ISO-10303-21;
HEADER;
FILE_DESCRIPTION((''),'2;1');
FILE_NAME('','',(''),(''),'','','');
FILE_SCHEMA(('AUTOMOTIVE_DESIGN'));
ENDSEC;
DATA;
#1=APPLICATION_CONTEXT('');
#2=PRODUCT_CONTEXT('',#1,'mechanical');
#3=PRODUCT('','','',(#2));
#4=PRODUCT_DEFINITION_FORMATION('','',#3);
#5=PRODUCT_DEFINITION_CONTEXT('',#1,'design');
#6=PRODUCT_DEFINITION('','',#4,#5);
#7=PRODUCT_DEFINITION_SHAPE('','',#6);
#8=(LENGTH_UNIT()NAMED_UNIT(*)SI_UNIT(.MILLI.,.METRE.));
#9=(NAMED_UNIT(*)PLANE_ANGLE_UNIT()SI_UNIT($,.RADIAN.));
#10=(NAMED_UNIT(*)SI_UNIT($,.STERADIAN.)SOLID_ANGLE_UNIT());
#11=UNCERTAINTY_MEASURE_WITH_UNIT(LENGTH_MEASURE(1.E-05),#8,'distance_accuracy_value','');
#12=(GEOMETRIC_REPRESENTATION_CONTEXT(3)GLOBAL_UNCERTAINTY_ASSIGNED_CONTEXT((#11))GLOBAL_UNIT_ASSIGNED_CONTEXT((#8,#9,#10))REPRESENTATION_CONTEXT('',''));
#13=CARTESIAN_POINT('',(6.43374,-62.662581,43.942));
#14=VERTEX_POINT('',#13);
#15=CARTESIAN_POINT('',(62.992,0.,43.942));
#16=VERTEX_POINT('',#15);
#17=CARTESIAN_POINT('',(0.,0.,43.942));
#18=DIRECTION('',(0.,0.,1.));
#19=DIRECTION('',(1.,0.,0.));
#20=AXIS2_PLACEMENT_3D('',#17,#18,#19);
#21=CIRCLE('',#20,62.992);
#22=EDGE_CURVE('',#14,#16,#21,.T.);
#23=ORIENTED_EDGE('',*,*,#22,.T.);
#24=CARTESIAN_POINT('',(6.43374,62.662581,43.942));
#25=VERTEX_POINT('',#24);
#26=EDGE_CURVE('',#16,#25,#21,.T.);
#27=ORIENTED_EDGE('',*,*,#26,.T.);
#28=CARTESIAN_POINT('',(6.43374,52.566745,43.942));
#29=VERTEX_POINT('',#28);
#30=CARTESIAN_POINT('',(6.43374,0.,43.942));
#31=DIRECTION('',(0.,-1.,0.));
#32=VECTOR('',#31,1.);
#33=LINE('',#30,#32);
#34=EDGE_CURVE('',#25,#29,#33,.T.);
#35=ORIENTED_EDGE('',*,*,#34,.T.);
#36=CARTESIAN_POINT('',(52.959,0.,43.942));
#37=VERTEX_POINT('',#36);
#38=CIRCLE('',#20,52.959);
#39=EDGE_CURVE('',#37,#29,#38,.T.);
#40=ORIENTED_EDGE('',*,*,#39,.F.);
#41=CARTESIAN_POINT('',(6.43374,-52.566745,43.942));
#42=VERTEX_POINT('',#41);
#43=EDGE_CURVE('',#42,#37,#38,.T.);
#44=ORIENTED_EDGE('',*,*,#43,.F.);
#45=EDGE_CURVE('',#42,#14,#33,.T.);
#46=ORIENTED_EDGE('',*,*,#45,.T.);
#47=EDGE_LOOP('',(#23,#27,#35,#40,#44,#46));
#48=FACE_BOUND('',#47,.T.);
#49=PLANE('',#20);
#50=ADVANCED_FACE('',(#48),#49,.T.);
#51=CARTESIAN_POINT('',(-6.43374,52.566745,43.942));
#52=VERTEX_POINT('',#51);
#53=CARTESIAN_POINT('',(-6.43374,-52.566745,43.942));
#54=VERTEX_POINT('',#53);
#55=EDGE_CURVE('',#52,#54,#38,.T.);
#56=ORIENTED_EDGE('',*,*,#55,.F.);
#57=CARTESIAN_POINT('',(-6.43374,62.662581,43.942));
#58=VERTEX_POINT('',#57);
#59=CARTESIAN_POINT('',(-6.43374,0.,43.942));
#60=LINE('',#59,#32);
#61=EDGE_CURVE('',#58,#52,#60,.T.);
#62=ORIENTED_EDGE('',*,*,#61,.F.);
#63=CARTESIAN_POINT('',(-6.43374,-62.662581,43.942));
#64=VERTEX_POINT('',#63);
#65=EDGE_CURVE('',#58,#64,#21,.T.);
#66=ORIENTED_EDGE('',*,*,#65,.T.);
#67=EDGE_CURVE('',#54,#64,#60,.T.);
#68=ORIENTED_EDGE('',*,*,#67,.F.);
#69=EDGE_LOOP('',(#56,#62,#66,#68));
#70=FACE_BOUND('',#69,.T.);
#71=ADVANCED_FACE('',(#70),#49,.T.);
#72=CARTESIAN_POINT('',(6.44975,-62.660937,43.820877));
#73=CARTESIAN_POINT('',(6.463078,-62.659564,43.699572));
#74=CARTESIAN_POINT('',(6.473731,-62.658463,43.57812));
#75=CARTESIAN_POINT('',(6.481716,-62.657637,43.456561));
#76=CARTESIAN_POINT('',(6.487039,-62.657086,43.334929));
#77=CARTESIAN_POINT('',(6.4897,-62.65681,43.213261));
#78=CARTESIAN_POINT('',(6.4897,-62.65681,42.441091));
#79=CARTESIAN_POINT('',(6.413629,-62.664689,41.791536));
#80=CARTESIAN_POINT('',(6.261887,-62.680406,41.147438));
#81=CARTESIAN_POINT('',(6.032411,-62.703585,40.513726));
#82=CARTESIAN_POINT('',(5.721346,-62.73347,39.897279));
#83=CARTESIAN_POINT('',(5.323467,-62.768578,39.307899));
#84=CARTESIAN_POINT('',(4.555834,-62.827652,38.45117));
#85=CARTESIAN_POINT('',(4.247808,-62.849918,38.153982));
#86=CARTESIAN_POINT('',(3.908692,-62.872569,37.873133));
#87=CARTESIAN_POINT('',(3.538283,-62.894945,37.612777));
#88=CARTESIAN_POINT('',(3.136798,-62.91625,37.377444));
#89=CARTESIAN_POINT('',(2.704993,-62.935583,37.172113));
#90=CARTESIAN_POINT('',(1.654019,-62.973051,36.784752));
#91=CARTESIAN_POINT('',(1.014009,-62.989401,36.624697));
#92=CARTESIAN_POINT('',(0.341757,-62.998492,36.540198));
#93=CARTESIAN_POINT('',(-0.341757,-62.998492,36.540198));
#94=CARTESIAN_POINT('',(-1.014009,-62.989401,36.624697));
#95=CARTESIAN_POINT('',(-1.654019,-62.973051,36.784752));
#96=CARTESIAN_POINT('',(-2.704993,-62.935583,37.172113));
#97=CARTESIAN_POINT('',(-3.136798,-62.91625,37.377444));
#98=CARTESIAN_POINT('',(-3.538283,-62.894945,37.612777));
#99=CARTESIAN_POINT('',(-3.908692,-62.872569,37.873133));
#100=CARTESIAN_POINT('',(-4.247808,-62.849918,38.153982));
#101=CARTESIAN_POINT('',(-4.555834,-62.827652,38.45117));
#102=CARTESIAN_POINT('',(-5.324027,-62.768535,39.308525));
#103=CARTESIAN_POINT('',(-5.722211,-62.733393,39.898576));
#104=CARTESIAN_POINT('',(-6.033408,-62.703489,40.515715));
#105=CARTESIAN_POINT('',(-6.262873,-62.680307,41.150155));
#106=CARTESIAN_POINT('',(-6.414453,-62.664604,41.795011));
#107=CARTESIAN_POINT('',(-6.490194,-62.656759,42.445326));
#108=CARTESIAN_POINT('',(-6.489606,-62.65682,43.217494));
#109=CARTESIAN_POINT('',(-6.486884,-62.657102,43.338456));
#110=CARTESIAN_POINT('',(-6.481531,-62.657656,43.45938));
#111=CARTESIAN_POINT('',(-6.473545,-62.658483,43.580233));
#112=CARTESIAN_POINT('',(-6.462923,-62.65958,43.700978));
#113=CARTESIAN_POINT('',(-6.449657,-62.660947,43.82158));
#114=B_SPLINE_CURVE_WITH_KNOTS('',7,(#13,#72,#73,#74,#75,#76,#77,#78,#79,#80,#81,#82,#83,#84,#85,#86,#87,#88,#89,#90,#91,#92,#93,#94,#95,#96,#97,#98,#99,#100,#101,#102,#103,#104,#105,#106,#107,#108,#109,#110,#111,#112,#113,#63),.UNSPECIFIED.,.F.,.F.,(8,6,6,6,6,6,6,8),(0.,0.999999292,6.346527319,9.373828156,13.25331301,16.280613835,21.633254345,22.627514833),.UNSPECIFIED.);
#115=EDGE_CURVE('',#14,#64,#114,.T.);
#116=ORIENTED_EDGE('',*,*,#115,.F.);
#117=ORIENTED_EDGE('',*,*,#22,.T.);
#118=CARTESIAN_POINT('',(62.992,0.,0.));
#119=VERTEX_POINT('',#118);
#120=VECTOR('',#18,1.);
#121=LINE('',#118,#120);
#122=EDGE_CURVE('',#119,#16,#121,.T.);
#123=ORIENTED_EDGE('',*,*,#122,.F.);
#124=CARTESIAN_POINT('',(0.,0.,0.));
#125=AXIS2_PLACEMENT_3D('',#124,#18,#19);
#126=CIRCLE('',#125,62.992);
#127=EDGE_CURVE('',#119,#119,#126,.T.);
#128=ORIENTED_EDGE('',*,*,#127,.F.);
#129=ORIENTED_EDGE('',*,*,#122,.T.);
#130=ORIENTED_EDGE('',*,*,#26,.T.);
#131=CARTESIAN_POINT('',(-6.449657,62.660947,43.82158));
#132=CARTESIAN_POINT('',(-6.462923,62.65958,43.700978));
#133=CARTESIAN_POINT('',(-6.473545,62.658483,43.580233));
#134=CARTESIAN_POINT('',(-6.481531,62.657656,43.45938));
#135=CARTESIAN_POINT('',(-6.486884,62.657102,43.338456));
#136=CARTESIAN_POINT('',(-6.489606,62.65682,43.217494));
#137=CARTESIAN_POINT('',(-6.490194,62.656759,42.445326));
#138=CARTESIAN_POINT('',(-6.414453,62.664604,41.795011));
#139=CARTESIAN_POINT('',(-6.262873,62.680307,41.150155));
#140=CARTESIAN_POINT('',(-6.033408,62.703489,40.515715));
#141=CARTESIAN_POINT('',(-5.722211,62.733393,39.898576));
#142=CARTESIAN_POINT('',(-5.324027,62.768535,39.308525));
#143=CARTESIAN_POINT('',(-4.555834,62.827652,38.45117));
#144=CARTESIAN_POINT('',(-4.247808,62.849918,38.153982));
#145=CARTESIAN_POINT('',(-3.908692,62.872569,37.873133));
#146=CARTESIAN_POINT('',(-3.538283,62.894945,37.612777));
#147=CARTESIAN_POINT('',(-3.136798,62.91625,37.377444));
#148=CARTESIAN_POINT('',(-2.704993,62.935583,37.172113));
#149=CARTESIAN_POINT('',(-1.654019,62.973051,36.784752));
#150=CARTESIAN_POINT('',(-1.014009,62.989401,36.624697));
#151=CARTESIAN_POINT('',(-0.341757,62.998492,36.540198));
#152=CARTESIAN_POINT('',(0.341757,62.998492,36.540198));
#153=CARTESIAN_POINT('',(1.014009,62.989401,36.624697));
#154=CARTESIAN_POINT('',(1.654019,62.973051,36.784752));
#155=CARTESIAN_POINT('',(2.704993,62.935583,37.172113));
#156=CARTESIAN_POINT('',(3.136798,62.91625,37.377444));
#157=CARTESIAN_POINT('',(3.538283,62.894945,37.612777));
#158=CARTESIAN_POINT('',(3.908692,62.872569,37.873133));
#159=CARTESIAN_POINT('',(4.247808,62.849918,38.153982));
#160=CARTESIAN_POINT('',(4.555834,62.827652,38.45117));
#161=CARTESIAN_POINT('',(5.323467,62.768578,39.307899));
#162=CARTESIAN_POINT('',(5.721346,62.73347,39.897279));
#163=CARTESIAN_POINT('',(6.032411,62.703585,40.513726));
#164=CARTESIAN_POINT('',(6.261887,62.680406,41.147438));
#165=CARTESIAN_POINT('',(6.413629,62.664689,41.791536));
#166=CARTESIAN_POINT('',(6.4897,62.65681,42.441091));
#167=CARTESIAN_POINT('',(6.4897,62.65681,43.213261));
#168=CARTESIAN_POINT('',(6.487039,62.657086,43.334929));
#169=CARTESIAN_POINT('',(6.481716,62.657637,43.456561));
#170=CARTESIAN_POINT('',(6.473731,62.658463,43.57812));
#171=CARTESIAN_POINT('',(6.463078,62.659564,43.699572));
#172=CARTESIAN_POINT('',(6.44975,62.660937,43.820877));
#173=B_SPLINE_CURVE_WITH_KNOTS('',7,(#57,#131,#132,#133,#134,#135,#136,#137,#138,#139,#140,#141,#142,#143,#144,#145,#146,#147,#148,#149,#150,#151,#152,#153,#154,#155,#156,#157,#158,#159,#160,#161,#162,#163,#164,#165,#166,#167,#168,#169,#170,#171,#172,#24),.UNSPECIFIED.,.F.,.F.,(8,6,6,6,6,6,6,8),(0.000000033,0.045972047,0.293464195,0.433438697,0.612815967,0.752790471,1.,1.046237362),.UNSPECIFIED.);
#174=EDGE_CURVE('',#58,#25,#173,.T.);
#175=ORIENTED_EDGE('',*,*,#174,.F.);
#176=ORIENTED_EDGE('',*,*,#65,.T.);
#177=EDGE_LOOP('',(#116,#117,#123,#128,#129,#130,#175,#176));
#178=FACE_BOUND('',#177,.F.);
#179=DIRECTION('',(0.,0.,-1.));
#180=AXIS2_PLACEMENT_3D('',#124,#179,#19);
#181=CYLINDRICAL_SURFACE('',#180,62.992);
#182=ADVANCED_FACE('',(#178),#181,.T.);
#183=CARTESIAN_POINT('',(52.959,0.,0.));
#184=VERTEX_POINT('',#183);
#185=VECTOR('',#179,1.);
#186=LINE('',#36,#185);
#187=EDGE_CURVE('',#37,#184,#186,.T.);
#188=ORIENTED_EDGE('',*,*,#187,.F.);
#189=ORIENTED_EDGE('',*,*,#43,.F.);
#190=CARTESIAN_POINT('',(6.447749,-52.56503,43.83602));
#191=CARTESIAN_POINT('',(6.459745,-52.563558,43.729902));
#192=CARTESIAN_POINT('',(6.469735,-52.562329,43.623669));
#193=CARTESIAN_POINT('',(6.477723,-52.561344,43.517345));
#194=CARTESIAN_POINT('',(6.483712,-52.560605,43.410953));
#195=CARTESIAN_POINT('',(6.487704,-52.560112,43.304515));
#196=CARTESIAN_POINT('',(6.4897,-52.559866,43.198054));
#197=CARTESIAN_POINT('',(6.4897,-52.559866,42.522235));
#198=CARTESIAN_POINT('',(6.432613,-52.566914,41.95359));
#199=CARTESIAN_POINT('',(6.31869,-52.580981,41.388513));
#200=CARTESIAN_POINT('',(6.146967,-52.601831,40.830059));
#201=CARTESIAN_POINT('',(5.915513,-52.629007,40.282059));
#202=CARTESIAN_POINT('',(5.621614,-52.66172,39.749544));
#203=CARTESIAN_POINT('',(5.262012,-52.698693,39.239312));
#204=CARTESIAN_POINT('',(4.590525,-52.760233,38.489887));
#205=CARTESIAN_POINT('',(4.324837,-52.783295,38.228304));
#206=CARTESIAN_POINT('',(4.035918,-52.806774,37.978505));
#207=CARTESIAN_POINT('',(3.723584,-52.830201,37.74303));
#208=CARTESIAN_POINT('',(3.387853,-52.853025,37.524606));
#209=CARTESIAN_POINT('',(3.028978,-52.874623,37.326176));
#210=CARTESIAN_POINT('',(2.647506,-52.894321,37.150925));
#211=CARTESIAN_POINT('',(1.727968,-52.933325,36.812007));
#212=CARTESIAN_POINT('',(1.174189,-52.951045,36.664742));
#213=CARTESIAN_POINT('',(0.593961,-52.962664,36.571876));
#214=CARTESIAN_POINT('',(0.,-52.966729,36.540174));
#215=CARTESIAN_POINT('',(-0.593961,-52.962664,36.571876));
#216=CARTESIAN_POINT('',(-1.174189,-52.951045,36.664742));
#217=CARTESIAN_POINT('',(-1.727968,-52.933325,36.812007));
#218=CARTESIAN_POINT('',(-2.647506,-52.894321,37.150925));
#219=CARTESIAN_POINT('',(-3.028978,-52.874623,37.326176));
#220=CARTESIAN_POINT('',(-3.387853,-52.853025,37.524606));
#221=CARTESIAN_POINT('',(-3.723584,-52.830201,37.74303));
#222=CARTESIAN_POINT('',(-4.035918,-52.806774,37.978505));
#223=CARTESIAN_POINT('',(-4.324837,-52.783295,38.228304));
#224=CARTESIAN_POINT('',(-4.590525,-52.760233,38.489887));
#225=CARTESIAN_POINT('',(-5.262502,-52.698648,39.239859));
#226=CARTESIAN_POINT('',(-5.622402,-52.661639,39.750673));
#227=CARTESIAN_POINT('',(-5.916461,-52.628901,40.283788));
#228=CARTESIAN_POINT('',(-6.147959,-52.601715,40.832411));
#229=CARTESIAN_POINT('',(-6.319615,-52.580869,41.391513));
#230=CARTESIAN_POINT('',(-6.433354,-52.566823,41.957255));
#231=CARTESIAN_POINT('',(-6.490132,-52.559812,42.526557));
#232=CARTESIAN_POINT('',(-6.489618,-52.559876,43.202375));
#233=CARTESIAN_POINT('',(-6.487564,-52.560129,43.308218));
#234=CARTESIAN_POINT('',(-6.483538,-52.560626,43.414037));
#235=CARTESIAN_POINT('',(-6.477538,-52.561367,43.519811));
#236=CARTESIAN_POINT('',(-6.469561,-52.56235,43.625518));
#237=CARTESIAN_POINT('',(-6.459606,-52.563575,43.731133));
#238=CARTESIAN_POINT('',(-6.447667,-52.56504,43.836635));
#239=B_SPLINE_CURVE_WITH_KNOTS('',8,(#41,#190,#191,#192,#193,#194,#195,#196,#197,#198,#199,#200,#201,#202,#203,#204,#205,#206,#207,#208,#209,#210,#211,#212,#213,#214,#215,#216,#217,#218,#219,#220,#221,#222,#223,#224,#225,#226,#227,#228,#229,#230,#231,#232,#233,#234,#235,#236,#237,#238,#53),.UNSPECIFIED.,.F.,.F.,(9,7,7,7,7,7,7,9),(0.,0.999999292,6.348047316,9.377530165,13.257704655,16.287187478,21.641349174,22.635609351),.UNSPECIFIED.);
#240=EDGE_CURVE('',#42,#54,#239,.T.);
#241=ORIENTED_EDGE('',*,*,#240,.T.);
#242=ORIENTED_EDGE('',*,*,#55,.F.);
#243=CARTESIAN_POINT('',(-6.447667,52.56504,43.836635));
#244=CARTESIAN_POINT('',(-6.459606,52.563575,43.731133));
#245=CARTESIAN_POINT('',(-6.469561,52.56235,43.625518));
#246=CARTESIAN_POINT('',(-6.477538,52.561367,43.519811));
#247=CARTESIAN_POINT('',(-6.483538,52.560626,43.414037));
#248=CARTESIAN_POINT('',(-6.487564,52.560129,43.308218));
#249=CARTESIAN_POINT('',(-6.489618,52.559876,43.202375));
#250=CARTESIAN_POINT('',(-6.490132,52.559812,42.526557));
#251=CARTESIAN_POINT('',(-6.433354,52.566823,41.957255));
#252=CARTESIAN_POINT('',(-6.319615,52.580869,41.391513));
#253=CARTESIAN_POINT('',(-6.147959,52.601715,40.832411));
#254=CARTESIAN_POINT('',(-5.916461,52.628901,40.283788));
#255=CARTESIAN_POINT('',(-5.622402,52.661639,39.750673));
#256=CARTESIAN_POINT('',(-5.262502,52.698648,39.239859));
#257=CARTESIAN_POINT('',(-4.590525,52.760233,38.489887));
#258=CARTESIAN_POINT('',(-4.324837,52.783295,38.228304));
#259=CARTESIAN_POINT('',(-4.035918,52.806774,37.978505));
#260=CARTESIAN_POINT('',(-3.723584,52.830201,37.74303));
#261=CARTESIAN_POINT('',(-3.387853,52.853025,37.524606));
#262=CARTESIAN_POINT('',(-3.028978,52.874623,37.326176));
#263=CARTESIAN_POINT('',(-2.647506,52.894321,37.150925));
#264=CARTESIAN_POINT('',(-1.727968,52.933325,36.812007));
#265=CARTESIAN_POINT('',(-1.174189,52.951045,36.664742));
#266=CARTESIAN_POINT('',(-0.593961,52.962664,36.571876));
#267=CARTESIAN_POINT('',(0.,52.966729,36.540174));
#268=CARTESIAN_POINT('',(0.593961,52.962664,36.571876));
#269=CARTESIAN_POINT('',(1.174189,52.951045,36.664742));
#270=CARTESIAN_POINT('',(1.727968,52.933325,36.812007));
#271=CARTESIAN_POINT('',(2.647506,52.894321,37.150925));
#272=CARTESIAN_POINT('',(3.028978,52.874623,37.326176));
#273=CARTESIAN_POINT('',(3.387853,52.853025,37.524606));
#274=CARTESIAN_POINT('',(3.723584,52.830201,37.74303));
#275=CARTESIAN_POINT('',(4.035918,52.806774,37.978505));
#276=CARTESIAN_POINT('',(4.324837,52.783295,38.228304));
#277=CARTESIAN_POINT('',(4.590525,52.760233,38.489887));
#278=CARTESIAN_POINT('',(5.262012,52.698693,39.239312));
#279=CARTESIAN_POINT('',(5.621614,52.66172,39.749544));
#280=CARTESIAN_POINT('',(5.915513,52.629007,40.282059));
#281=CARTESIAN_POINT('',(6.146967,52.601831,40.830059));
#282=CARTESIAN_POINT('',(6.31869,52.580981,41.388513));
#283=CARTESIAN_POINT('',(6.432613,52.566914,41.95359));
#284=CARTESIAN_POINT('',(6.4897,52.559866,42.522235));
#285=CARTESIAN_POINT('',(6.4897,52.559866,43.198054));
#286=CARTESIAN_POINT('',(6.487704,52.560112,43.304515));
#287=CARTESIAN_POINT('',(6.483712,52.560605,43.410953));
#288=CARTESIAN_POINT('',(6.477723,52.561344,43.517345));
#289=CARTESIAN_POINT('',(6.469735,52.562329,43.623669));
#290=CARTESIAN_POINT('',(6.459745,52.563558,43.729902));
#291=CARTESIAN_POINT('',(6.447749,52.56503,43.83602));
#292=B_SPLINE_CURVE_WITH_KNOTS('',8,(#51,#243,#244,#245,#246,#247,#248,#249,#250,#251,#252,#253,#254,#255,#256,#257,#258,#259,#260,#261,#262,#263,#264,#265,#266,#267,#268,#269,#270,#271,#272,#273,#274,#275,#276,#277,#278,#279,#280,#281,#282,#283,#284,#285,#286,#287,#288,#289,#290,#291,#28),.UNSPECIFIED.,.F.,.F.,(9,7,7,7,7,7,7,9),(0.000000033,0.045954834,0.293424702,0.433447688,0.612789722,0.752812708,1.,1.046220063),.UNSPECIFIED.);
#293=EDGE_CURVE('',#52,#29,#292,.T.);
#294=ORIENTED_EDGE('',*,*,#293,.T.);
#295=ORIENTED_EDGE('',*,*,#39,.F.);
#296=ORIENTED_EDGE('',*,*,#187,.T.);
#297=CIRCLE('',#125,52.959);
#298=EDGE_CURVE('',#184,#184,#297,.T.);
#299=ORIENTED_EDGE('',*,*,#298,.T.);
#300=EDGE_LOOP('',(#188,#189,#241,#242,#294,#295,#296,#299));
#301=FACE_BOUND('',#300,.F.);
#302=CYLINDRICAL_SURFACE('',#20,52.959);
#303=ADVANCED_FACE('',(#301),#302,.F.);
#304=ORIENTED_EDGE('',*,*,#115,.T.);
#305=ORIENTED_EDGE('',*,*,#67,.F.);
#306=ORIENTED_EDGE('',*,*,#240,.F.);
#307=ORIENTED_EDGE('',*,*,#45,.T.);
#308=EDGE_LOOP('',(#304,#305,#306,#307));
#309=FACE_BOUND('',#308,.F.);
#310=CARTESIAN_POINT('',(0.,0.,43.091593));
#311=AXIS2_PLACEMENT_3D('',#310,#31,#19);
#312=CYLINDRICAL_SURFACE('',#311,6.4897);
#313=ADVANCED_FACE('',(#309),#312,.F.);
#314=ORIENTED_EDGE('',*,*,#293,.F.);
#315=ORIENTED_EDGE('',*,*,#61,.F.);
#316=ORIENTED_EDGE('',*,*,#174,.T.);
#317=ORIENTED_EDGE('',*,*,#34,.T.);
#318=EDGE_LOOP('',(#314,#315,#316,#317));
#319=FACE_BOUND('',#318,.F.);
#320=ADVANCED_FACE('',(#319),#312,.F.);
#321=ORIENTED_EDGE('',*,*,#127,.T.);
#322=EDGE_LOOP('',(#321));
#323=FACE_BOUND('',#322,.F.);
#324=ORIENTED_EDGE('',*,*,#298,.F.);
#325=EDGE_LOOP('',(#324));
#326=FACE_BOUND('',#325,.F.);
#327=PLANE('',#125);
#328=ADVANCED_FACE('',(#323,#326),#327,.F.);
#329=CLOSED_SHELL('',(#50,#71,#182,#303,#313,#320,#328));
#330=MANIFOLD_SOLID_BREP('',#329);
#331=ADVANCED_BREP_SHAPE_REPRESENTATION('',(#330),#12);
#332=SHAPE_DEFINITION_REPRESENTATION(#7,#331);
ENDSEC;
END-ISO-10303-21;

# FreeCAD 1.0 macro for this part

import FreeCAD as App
import Part
import Sketcher
Q = App.Units.Quantity

doc = App.newDocument("Part")
body = doc.addObject("PartDesign::Body", "Body")

# Sketch on XY plane
sketch1 = body.newObject("Sketcher::SketchObject", "Sketch")
sketch1.AttachmentSupport = (doc.getObject("XY_Plane"), [""])
sketch1.MapMode = "FlatFace"
sketch1.addGeometry(Part.Circle(App.Vector(0, 0, 0), App.Vector(0, 0, 1), 62.992), False)
sketch1.addConstraint([
    Sketcher.Constraint("Coincident", 0, 3, -1, 1),
    Sketcher.Constraint("Diameter", 0, Q("4.96 in")),
])
pad1 = body.newObject("PartDesign::Pad", "Pad")
pad1.Profile = sketch1
pad1.Length = Q("1.73 in")

# Sketch on XY plane
sketch2 = body.newObject("Sketcher::SketchObject", "Sketch001")
sketch2.AttachmentSupport = (doc.getObject("XY_Plane"), [""])
sketch2.MapMode = "FlatFace"
sketch2.AttachmentOffset = App.Placement(App.Vector(0, 0, 1.73 * 25.4), App.Rotation())
sketch2.addGeometry(Part.Circle(App.Vector(0, 0, 0), App.Vector(0, 0, 1), 52.959), False)
sketch2.addConstraint([
    Sketcher.Constraint("Coincident", 0, 3, -1, 1),
    Sketcher.Constraint("Diameter", 0, Q("4.17 in")),
])
pocket1 = body.newObject("PartDesign::Pocket", "Pocket")
pocket1.Profile = sketch2
pocket1.Length = Q("1.73 in")

# Sketch on XZ plane
sketch3 = body.newObject("Sketcher::SketchObject", "Sketch002")
sketch3.AttachmentSupport = (doc.getObject("XZ_Plane"), [""])
sketch3.MapMode = "FlatFace"
sketch3.addGeometry(Part.Circle(App.Vector(0, 43.091593, 0), App.Vector(0, 0, 1), 6.4897), False)
sketch3.addConstraint([
    Sketcher.Constraint("PointOnObject", 0, 3, -2),
    Sketcher.Constraint("Diameter", 0, Q("0.511 in")),
    Sketcher.Constraint("DistanceY", -1, 1, 0, 3, Q("43.091593 mm")),
])
pocket2 = body.newObject("PartDesign::Pocket", "Pocket001")
pocket2.Profile = sketch3
pocket2.Length = Q("5 in")
pocket2.Midplane = True

doc.recompute()
